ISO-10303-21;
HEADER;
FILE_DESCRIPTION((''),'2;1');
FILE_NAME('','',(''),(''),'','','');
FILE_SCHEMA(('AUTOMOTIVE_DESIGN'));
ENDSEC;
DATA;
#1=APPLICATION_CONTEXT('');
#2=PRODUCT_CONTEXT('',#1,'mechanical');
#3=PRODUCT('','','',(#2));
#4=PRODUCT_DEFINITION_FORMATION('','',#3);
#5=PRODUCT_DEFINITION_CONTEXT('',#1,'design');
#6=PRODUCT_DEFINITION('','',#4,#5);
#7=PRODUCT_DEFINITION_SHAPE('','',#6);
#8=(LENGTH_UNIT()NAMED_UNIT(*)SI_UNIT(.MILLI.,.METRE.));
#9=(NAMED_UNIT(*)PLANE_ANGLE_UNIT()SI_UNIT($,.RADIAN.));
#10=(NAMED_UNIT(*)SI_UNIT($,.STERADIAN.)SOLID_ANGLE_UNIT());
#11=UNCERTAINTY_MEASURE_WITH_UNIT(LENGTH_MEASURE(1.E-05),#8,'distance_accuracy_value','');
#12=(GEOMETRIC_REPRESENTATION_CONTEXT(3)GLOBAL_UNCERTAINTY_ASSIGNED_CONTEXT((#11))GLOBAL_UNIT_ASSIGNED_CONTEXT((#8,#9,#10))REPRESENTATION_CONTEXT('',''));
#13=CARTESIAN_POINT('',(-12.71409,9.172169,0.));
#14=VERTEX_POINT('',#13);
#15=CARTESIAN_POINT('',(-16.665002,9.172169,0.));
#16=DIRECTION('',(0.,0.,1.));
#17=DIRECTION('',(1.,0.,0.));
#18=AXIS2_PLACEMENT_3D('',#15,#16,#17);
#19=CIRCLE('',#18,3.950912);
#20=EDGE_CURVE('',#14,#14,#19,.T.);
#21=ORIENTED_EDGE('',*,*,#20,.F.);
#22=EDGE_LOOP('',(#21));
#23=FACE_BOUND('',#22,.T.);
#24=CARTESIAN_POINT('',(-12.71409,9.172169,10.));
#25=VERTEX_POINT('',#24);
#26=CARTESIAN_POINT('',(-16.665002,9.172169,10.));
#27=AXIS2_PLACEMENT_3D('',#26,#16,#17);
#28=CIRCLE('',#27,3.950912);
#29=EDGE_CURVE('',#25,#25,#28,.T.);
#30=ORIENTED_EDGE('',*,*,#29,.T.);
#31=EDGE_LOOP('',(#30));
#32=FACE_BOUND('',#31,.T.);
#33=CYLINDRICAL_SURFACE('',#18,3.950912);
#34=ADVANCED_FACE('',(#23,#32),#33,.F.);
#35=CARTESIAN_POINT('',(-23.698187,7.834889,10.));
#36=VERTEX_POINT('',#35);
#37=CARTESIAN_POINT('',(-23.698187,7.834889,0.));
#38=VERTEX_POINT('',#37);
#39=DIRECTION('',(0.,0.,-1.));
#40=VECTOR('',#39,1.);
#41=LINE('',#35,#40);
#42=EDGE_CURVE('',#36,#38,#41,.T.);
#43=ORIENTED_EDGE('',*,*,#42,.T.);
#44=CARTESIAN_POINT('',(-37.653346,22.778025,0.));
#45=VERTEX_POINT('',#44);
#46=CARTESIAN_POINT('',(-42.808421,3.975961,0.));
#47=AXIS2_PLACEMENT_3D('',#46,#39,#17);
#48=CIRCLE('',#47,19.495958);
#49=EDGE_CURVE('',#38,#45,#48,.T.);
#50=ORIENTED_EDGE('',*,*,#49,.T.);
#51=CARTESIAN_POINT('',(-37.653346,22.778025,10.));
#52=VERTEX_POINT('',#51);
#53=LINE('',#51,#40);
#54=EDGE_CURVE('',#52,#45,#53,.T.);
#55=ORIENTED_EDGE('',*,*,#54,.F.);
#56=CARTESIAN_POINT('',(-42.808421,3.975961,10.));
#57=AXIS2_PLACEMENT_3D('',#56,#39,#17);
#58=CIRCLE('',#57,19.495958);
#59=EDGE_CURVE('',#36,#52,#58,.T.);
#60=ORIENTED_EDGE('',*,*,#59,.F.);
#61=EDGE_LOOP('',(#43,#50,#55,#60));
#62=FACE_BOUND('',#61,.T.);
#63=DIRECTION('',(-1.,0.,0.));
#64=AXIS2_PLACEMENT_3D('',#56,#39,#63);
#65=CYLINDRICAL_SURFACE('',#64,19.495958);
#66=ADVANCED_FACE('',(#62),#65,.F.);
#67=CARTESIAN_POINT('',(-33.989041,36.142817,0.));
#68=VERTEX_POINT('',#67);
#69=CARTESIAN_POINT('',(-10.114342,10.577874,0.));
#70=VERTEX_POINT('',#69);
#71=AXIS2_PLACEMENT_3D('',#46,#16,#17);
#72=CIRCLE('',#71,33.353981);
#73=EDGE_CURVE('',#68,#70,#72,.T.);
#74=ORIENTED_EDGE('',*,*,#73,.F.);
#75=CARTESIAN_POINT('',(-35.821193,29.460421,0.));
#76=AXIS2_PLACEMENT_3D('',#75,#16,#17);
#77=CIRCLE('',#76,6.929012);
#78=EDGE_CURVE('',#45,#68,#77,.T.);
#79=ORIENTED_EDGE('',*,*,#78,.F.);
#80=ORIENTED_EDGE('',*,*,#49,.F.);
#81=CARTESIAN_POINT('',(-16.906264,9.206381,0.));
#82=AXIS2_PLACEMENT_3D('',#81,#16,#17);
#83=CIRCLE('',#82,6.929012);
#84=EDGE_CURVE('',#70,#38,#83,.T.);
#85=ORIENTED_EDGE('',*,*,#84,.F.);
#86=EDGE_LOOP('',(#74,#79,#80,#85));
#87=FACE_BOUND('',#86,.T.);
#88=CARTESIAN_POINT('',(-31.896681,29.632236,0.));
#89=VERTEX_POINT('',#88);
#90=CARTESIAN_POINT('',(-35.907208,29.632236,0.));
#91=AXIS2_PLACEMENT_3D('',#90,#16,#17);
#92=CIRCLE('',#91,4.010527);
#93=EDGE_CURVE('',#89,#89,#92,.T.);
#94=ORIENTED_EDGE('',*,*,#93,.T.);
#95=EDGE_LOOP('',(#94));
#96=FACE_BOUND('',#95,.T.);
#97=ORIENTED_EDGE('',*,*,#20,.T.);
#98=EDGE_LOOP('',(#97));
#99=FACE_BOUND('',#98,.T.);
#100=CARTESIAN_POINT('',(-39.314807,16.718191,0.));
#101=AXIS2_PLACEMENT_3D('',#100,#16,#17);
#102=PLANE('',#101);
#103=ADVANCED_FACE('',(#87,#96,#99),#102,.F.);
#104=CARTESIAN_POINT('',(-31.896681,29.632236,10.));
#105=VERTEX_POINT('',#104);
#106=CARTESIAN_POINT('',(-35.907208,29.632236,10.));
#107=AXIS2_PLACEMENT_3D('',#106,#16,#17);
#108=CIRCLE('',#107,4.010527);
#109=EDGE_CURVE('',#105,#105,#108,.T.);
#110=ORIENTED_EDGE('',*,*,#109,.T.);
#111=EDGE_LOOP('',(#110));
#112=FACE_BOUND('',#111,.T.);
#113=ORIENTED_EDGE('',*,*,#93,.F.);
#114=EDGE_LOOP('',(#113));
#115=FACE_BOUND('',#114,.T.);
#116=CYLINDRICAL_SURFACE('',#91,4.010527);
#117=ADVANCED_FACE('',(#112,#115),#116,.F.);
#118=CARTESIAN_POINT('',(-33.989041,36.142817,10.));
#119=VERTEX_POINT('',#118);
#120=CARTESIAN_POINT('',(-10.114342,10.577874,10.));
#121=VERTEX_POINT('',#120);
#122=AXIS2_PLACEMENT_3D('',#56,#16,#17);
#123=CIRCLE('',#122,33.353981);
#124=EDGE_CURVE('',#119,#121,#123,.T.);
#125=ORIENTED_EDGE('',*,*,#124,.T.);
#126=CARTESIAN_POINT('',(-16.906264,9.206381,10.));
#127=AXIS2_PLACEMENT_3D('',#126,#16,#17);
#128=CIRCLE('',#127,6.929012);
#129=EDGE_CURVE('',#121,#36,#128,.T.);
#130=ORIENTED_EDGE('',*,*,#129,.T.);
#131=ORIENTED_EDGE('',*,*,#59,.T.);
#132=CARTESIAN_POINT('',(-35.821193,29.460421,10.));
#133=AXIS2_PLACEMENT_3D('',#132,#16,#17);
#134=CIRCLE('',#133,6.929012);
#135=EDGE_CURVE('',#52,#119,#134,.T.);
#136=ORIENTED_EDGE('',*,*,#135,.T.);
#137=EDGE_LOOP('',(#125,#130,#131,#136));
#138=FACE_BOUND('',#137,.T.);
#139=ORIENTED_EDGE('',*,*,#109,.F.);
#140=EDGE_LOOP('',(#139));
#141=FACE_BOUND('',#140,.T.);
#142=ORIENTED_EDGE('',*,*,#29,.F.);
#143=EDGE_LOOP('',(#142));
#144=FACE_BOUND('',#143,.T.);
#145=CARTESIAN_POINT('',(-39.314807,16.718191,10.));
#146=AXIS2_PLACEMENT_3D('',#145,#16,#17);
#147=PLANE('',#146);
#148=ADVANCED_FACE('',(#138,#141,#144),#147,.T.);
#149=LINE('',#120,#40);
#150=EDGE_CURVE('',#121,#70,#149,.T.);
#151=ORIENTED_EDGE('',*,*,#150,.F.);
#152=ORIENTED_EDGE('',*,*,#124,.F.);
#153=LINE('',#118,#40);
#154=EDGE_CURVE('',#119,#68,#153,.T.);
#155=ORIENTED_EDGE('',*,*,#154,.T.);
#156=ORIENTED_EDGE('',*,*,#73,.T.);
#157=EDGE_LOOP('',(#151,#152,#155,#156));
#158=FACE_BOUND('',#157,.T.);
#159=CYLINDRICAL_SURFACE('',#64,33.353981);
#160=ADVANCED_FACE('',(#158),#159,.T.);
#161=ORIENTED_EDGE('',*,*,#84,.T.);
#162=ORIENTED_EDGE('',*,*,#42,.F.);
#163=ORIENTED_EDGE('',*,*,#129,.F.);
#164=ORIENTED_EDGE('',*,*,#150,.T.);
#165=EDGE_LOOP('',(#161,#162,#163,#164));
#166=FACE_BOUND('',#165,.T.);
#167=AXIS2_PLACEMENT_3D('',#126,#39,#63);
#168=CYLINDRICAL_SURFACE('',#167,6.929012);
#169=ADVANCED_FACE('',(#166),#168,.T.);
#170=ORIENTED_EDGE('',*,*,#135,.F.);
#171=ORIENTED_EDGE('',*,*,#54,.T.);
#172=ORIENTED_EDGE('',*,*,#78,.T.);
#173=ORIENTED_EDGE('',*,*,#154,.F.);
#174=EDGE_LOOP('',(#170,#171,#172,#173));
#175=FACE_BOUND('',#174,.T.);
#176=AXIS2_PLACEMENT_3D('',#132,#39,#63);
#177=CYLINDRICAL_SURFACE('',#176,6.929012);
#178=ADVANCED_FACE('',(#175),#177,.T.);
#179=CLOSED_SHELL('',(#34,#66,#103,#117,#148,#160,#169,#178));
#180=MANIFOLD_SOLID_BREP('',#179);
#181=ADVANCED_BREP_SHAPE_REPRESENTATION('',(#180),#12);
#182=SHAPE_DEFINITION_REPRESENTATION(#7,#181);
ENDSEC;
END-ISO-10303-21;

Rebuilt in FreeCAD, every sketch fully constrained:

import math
import FreeCAD as App
import Part
import Sketcher

doc = App.newDocument("Part")
body = doc.addObject("PartDesign::Body", "Body")

sketch1 = body.newObject("Sketcher::SketchObject", "Sketch")
sketch1.AttachmentSupport = (doc.getObject("XY_Plane"), [""])
sketch1.MapMode = "FlatFace"
sketch1.addGeometry([
    Part.ArcOfCircle(Part.Circle(App.Vector(-43, 4, 0), App.Vector(0, 0, 1), 33), math.radians(75), math.radians(371)),
    Part.ArcOfCircle(Part.Circle(App.Vector(-17, 9, 0), App.Vector(0, 0, 1), 7), math.radians(11), math.radians(191)),
    Part.ArcOfCircle(Part.Circle(App.Vector(-43, 4, 0), App.Vector(0, 0, 1), 19), math.radians(75), math.radians(371)),
    Part.ArcOfCircle(Part.Circle(App.Vector(-36, 29, 0), App.Vector(0, 0, 1), 7), math.radians(-105), math.radians(75)),
], False)
sketch1.addConstraint([
    Sketcher.Constraint("Tangent", 0, 2, 1, 1),
    Sketcher.Constraint("Tangent", 1, 2, 2, 2),
    Sketcher.Constraint("Tangent", 2, 1, 3, 1),
    Sketcher.Constraint("Tangent", 3, 2, 0, 1),
    Sketcher.Constraint("Coincident", 2, 3, 0, 3),
    Sketcher.Constraint("Radius", 0, 33.353981),
    Sketcher.Constraint("Radius", 1, 6.929012),
    Sketcher.Constraint("DistanceX", 0, 3, -1, 1, 42.808421),
    Sketcher.Constraint("DistanceY", -1, 1, 0, 3, 3.975961),
    Sketcher.Constraint("DistanceY", -1, 1, 1, 3, 9.206381),
    Sketcher.Constraint("DistanceY", -1, 1, 3, 3, 29.460421),
])
pad1 = body.newObject("PartDesign::Pad", "Pad")
pad1.Profile = sketch1
pad1.Length = 10

sketch2 = body.newObject("Sketcher::SketchObject", "Sketch001")
sketch2.AttachmentSupport = (doc.getObject("XY_Plane"), [""])
sketch2.MapMode = "FlatFace"
sketch2.AttachmentOffset = App.Placement(App.Vector(0, 0, 10), App.Rotation())
sketch2.addGeometry([
    Part.Circle(App.Vector(-35.9, 29.6, 0), App.Vector(0, 0, 1), 4),
    Part.Circle(App.Vector(-16.7, 9.2, 0), App.Vector(0, 0, 1), 4),
], False)
sketch2.addConstraint([
    Sketcher.Constraint("Diameter", 0, 8.021054),
    Sketcher.Constraint("Diameter", 1, 7.901824),
    Sketcher.Constraint("DistanceY", -1, 1, 1, 3, 9.172169),
    Sketcher.Constraint("DistanceX", 0, 3, -1, 1, 35.907208),
    Sketcher.Constraint("DistanceY", -1, 1, 0, 3, 29.632236),
    Sketcher.Constraint("DistanceX", 1, 3, -1, 1, 16.665002),
])
pocket1 = body.newObject("PartDesign::Pocket", "Pocket")
pocket1.Profile = sketch2
pocket1.Length = 10

doc.recompute()
